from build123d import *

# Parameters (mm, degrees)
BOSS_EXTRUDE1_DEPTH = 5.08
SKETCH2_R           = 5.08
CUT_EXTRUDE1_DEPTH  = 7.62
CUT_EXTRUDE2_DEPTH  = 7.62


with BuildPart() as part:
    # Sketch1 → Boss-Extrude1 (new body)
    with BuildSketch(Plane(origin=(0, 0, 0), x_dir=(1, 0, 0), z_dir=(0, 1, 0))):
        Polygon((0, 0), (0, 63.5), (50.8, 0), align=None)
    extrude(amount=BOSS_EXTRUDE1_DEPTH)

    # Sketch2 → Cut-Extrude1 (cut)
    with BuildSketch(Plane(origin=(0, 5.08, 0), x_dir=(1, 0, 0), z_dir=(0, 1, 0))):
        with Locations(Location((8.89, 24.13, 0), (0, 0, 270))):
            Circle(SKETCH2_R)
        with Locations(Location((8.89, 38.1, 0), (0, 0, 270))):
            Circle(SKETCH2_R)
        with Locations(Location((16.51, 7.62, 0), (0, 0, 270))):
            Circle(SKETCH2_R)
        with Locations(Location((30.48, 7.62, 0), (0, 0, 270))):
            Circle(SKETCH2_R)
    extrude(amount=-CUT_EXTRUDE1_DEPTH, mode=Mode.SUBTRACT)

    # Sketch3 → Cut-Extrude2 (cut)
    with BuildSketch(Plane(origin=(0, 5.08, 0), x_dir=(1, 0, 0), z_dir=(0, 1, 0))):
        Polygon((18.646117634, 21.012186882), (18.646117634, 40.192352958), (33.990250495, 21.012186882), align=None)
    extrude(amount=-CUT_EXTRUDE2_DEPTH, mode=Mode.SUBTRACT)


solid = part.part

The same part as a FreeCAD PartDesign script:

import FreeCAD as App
import Part
import Sketcher

V = App.Vector
Q = App.Units.Quantity

doc = App.newDocument("Part")
body = doc.addObject("PartDesign::Body", "Body")

sketch1 = body.newObject("Sketcher::SketchObject", "Sketch")
sketch1.AttachmentSupport = (doc.getObject("XZ_Plane"), [""])
sketch1.MapMode = "FlatFace"
sketch1.addGeometry([
    Part.LineSegment(V(0, -63.5, 0), V(0, 0, 0)),
    Part.LineSegment(V(0, 0, 0), V(50.8, 0, 0)),
    Part.LineSegment(V(50.8, 0, 0), V(0, -63.5, 0)),
], False)
sketch1.addConstraint([
    Sketcher.Constraint("Coincident", 0, 2, 1, 1),
    Sketcher.Constraint("Coincident", 1, 2, 2, 1),
    Sketcher.Constraint("Coincident", 2, 2, 0, 1),
    Sketcher.Constraint("Vertical", 0),
    Sketcher.Constraint("Horizontal", 1),
    Sketcher.Constraint("Coincident", 0, 2, -1, 1),
    Sketcher.Constraint("DistanceX", 1, 1, 1, 2, Q("2 in")),
    Sketcher.Constraint("DistanceY", 0, 1, 0, 2, Q("2.5 in")),
])
pad1 = body.newObject("PartDesign::Pad", "Pad")
pad1.Profile = sketch1
pad1.Length = Q("0.2 in")
pad1.Reversed = True

sketch2 = body.newObject("Sketcher::SketchObject", "Sketch001")
sketch2.AttachmentSupport = (doc.getObject("XZ_Plane"), [""])
sketch2.MapMode = "FlatFace"
sketch2.AttachmentOffset = App.Placement(V(0, 0, -0.2 * 25.4), App.Rotation())
sketch2.addGeometry([
    Part.Circle(V(8.89, -24.13, 0), V(0, 0, 1), 5.08),
    Part.Circle(V(8.89, -38.1, 0), V(0, 0, 1), 5.08),
    Part.Circle(V(16.51, -7.62, 0), V(0, 0, 1), 5.08),
    Part.Circle(V(30.48, -7.62, 0), V(0, 0, 1), 5.08),
], False)
sketch2.addConstraint([
    Sketcher.Constraint("Equal", 0, 1),
    Sketcher.Constraint("Equal", 1, 2),
    Sketcher.Constraint("Equal", 2, 3),
    Sketcher.Constraint("Horizontal", 2, 3, 3, 3),
    Sketcher.Constraint("Vertical", 0, 3, 1, 3),
    Sketcher.Constraint("Diameter", 0, Q("0.4 in")),
    Sketcher.Constraint("DistanceY", 1, 3, -1, 1, Q("1.5 in")),
    Sketcher.Constraint("DistanceY", 2, 3, -1, 1, Q("0.3 in")),
    Sketcher.Constraint("DistanceX", -1, 1, 3, 3, Q("1.2 in")),
    Sketcher.Constraint("DistanceX", 0, 3, 2, 3, Q("0.3 in")),
    Sketcher.Constraint("DistanceX", -1, 1, 0, 3, Q("0.35 in")),
    Sketcher.Constraint("DistanceY", 0, 3, -1, 1, Q("0.95 in")),
])
pocket1 = body.newObject("PartDesign::Pocket", "Pocket")
pocket1.Profile = sketch2
pocket1.Length = Q("0.3 in")
pocket1.Reversed = True

sketch3 = body.newObject("Sketcher::SketchObject", "Sketch002")
sketch3.AttachmentSupport = (doc.getObject("XZ_Plane"), [""])
sketch3.MapMode = "FlatFace"
sketch3.AttachmentOffset = App.Placement(V(0, 0, -0.2 * 25.4), App.Rotation())
sketch3.addGeometry([
    Part.LineSegment(V(18.646118, -40.192353, 0), V(18.646118, -21.012187, 0)),
    Part.LineSegment(V(18.646118, -21.012187, 0), V(33.99025, -21.012187, 0)),
    Part.LineSegment(V(33.99025, -21.012187, 0), V(18.646118, -40.192353, 0)),
], False)
sketch3.addConstraint([
    Sketcher.Constraint("Coincident", 0, 2, 1, 1),
    Sketcher.Constraint("Coincident", 1, 2, 2, 1),
    Sketcher.Constraint("Coincident", 2, 2, 0, 1),
    Sketcher.Constraint("Vertical", 0),
    Sketcher.Constraint("Horizontal", 1),
    Sketcher.Constraint("DistanceX", 1, 1, 1, 2, Q("15.344133 mm")),
    Sketcher.Constraint("DistanceY", 0, 1, 0, 2, Q("19.180166 mm")),
    Sketcher.Constraint("DistanceX", -1, 1, 1, 2, Q("33.99025 mm")),
    Sketcher.Constraint("DistanceY", 0, 2, -1, 1, Q("21.012187 mm")),
])
pocket2 = body.newObject("PartDesign::Pocket", "Pocket001")
pocket2.Profile = sketch3
pocket2.Length = Q("0.3 in")
pocket2.Reversed = True

doc.recompute()
